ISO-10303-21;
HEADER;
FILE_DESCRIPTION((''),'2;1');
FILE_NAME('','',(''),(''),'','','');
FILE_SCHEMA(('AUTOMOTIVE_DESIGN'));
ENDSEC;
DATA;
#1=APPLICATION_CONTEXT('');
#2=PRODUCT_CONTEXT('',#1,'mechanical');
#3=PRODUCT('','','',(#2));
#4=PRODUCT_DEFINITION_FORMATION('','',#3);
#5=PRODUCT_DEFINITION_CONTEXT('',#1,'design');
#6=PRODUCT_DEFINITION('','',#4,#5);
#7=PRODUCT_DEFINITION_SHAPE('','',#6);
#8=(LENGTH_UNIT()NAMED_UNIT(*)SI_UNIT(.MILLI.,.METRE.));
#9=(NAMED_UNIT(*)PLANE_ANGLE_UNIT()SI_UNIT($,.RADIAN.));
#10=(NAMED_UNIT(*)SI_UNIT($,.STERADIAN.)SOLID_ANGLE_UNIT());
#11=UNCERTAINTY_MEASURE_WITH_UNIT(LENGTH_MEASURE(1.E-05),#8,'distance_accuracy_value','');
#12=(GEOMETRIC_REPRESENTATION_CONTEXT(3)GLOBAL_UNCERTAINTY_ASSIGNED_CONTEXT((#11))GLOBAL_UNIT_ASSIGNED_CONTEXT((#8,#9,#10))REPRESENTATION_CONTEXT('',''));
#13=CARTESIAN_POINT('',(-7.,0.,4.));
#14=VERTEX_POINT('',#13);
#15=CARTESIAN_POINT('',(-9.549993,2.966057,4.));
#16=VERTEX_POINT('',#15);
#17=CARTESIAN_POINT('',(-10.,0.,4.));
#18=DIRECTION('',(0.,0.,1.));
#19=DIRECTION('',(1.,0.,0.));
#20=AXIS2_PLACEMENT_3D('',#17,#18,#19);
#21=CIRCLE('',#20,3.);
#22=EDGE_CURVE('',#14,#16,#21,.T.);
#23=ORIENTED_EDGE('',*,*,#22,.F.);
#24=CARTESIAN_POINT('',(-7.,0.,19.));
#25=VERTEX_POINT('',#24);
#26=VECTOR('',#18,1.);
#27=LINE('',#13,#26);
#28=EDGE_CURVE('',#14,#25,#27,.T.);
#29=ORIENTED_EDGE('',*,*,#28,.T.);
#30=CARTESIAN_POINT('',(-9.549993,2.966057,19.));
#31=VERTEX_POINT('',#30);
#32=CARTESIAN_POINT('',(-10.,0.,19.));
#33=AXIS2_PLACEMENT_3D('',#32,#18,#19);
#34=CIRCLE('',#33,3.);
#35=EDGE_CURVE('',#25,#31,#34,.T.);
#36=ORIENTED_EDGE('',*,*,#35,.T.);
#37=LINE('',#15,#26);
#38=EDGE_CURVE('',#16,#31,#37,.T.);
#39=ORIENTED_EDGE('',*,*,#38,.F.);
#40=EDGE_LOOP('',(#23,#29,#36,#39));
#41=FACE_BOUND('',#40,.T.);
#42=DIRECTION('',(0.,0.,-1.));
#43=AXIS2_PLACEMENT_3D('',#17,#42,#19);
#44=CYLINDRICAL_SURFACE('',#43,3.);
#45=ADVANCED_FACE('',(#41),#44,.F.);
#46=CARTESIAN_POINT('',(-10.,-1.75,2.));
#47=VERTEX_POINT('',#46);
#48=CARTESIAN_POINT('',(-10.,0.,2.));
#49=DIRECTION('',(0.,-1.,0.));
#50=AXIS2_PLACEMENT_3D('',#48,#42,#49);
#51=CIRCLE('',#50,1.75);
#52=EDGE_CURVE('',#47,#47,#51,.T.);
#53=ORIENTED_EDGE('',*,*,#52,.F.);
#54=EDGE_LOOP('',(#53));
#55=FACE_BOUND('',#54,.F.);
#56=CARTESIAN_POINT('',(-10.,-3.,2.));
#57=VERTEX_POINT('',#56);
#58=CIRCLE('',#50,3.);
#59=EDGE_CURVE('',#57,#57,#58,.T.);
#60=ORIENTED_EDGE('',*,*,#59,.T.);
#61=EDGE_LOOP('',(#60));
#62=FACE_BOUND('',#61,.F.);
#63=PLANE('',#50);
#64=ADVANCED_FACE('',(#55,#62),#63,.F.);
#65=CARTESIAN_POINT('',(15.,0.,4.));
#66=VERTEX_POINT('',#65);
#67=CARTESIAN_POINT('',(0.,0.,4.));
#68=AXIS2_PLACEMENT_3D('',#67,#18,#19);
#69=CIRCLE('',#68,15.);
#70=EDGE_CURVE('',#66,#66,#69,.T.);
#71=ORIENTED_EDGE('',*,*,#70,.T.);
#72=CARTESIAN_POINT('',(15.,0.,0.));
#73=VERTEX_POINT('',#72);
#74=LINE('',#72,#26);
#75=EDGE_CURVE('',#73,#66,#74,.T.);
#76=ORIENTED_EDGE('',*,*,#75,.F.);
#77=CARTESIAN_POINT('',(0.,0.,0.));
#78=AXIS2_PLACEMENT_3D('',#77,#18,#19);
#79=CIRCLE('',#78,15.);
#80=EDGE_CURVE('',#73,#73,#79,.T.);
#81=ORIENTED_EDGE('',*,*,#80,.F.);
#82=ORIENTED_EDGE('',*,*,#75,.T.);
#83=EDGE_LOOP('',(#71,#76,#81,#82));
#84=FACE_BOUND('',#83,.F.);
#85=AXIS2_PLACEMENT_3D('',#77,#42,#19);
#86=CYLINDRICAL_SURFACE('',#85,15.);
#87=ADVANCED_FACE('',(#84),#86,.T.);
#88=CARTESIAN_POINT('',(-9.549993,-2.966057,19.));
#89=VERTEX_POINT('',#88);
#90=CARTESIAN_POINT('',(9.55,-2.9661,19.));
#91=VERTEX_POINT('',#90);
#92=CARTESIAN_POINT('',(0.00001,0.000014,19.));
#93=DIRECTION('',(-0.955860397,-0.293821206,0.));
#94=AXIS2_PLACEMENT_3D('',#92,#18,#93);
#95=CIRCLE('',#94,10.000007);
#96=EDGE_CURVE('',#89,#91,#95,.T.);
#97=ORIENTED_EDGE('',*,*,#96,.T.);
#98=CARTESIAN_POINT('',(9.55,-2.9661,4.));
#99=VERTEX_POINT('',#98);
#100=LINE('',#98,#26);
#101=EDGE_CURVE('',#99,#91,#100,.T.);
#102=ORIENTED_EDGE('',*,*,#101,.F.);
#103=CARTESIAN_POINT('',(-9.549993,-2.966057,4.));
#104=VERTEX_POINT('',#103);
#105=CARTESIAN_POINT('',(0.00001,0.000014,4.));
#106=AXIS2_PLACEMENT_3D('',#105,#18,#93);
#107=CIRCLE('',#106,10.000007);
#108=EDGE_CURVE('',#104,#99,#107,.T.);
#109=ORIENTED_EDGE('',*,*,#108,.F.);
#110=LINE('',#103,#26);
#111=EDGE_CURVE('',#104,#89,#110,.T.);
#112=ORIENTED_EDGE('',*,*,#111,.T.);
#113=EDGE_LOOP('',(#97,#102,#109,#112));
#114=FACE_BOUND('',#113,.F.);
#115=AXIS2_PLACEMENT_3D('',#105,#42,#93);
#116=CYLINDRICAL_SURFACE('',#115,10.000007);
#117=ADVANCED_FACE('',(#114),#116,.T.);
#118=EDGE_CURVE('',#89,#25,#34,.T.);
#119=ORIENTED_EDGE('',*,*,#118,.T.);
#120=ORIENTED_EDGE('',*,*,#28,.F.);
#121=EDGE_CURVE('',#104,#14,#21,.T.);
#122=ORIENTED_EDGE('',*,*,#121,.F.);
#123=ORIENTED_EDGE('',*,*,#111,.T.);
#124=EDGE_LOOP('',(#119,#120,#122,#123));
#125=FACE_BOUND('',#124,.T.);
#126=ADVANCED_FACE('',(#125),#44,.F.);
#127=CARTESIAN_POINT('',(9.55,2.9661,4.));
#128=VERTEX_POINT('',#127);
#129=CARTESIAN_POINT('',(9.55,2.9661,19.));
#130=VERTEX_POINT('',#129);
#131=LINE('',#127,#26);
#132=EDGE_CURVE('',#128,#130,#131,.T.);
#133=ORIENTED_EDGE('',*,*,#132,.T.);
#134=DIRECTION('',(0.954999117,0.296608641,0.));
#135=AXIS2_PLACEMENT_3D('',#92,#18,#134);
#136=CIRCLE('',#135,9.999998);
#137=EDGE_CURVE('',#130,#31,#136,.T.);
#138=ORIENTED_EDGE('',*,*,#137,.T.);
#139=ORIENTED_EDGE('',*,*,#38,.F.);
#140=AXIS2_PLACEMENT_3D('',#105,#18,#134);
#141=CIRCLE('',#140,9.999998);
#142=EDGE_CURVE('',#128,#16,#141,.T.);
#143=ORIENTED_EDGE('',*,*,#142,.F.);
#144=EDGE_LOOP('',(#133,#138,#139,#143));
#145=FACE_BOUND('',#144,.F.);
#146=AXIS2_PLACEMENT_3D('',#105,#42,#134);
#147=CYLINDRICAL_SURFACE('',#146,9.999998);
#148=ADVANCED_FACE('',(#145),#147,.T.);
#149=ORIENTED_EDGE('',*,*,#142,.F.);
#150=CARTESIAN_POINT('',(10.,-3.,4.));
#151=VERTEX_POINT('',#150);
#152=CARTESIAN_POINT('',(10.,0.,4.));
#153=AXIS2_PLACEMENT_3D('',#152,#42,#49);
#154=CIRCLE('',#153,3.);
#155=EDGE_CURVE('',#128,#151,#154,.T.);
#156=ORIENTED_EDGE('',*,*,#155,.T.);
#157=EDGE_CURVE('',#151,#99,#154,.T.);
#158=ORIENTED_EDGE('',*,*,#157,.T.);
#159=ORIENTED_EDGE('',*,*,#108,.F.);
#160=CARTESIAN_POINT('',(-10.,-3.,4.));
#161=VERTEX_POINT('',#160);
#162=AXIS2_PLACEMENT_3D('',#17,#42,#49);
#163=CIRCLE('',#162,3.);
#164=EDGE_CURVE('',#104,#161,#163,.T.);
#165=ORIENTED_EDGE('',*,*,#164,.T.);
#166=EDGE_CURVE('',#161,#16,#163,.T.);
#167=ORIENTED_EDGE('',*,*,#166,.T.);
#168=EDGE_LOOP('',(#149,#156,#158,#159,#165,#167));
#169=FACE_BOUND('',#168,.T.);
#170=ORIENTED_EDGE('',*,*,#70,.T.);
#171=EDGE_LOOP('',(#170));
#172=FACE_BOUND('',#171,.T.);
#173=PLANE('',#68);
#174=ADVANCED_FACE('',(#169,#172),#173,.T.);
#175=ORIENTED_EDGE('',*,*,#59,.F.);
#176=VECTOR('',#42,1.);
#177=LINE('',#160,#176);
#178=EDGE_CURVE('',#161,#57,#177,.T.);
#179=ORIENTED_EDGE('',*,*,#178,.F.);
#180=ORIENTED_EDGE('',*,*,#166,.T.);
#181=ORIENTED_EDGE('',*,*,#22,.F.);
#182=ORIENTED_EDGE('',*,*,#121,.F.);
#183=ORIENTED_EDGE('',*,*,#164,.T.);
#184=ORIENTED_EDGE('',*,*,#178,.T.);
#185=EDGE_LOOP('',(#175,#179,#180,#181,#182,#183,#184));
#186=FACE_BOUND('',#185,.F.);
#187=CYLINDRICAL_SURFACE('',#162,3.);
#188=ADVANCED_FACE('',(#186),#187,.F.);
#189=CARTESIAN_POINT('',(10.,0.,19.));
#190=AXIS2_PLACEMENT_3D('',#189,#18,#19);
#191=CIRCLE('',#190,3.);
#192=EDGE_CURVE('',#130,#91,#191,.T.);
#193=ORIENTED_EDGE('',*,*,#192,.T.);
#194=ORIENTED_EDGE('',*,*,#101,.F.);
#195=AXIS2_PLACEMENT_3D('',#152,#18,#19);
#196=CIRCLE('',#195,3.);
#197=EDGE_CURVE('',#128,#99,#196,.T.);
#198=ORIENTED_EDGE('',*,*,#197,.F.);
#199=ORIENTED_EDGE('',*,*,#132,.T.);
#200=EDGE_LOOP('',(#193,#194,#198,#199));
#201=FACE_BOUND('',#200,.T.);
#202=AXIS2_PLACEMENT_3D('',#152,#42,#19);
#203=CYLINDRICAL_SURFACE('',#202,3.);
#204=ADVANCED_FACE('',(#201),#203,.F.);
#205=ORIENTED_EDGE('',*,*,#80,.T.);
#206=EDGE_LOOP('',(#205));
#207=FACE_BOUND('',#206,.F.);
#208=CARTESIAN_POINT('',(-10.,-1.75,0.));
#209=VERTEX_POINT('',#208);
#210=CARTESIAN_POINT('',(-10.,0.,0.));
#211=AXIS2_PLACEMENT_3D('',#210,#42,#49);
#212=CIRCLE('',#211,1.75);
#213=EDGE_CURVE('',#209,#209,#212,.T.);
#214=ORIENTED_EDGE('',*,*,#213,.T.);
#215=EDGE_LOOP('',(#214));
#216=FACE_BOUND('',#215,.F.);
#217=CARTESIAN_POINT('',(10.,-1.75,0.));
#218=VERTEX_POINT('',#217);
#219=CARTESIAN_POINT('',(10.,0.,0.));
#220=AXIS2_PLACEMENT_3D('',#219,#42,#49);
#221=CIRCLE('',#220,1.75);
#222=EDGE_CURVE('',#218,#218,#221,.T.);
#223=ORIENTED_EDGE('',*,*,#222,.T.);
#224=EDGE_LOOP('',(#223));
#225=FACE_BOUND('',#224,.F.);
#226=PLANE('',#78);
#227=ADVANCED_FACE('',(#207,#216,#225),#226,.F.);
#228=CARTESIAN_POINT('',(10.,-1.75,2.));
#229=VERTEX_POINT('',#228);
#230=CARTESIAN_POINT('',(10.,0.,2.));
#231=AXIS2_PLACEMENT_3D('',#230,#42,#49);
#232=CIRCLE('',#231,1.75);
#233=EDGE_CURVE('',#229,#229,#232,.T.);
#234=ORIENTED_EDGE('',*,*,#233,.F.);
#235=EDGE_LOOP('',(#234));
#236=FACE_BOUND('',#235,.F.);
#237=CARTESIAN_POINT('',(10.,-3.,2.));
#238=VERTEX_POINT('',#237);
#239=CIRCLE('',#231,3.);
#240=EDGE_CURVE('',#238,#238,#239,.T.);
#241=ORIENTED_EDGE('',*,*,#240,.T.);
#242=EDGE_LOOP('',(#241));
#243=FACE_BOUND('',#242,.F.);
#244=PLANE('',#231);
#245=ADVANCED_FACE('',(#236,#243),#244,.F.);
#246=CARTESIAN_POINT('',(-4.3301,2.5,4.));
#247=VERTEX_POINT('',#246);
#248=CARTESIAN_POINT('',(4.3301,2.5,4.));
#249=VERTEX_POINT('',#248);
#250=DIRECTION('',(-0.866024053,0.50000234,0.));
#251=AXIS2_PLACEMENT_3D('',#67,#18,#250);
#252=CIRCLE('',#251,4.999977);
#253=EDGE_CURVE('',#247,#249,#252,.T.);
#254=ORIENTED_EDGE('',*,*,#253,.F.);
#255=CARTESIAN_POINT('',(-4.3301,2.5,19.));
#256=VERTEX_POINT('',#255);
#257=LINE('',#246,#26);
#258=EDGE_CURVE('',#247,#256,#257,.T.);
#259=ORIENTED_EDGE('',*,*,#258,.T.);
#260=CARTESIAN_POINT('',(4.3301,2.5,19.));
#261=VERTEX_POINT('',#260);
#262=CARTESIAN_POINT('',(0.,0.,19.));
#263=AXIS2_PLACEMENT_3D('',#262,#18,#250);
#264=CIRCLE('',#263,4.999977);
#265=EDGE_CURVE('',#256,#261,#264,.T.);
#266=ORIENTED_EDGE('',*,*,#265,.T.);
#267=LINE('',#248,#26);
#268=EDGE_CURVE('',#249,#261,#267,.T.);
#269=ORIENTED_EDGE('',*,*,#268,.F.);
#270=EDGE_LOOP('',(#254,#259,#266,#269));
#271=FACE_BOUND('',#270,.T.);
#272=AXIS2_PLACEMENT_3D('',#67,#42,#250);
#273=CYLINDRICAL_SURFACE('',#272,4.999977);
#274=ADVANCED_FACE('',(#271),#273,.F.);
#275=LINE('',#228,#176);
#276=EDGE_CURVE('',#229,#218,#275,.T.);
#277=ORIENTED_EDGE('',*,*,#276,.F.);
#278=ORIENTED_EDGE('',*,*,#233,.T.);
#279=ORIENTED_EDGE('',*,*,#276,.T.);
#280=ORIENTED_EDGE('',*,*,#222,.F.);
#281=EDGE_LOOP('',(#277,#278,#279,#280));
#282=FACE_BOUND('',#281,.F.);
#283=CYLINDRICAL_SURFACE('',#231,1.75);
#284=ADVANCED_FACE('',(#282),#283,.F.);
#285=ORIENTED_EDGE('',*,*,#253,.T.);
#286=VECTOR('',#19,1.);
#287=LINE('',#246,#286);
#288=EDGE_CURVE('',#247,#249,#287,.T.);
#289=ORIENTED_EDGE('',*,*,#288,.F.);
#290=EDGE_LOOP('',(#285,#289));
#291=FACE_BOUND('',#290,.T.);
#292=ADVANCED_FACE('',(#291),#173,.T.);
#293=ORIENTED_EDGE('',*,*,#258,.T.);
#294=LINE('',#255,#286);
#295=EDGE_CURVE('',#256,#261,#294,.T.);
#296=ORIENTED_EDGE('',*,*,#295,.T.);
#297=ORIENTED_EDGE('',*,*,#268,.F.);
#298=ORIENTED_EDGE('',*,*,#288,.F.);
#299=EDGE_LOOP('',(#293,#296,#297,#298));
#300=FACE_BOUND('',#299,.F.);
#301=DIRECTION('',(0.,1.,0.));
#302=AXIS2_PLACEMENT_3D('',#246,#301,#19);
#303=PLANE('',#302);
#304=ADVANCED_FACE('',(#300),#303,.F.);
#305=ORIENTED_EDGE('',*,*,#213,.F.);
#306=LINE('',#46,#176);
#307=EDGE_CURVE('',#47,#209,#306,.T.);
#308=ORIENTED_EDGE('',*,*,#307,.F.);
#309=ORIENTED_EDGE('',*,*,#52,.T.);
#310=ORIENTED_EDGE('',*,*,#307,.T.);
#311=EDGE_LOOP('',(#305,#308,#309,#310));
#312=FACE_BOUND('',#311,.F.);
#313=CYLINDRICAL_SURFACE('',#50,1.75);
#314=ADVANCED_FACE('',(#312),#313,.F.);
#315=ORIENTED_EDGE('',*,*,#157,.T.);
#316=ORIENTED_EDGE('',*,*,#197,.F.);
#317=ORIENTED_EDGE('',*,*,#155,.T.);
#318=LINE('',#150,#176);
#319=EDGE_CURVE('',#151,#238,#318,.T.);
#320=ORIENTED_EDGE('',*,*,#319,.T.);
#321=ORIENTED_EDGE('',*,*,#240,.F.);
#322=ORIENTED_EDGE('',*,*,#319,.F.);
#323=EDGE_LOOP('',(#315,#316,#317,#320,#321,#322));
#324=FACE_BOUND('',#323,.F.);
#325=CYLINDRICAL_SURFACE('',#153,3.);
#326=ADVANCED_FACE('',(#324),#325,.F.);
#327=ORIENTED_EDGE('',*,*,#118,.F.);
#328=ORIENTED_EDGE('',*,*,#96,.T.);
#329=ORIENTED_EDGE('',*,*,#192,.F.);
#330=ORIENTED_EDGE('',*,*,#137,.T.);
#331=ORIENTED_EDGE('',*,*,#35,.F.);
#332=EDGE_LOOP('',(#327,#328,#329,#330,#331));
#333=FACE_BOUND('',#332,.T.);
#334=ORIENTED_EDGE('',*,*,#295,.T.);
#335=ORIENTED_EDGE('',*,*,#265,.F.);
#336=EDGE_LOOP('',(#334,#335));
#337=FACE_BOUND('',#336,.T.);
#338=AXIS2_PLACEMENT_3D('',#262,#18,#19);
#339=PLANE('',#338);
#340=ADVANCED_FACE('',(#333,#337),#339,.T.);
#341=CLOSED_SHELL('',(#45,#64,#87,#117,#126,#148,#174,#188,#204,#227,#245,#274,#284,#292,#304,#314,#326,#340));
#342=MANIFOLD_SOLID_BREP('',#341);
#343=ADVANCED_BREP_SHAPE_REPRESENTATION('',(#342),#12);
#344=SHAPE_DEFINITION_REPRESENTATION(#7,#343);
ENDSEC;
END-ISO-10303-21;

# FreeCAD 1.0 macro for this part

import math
import FreeCAD as App
import Part
import Sketcher
Q = App.Units.Quantity

doc = App.newDocument("Part")
body = doc.addObject("PartDesign::Body", "Body")

sketch1 = doc.addObject("Sketcher::SketchObject", "Sketch")
body.addObject(sketch1)
sketch1.AttachmentSupport = (doc.XY_Plane, [""])
sketch1.MapMode = "FlatFace"
sketch1.addGeometry(Part.Circle(App.Vector(0, 0, 0), App.Vector(0, 0, 1), 15), False)
sketch1.addConstraint(Sketcher.Constraint("Coincident", 0, 3, -1, 1))
sketch1.addConstraint(Sketcher.Constraint("Diameter", 0, Q("30 mm")))
pad1 = doc.addObject("PartDesign::Pad", "Pad")
body.addObject(pad1)
pad1.Profile = sketch1
pad1.Length = 4

sketch2 = doc.addObject("Sketcher::SketchObject", "Sketch001")
body.addObject(sketch2)
sketch2.AttachmentSupport = (doc.XY_Plane, [""])
sketch2.MapMode = "FlatFace"
sketch2.AttachmentOffset = App.Placement(App.Vector(0, 0, 4), App.Rotation())
sketch2.addGeometry(Part.Circle(App.Vector(-10, 0, 0), App.Vector(0, 0, 1), 1.8), False)
sketch2.addGeometry(Part.Circle(App.Vector(10, 0, 0), App.Vector(0, 0, 1), 1.8), False)
sketch2.addConstraint(Sketcher.Constraint("Equal", 0, 1))
sketch2.addConstraint(Sketcher.Constraint("Symmetric", 0, 3, 1, 3, -1, 1))
sketch2.addConstraint(Sketcher.Constraint("PointOnObject", 0, 3, -1))
sketch2.addConstraint(Sketcher.Constraint("Diameter", 0, Q("3.5 mm")))
sketch2.addConstraint(Sketcher.Constraint("DistanceX", 0, 3, -1, 1, Q("10 mm")))
doc.recompute()
hole = doc.addObject("PartDesign::Hole", "Hole")
body.addObject(hole)
hole.Profile = sketch2
hole.ThreadType = "None"
hole.Diameter = 3.5
hole.DepthType = "ThroughAll"
hole.HoleCutType = "Counterbore"
hole.HoleCutDiameter = 6
hole.HoleCutDepth = 2

sketch3 = doc.addObject("Sketcher::SketchObject", "Sketch002")
body.addObject(sketch3)
sketch3.AttachmentSupport = (doc.XY_Plane, [""])
sketch3.MapMode = "FlatFace"
sketch3.AttachmentOffset = App.Placement(App.Vector(0, 0, 4), App.Rotation())
sketch3.addGeometry(Part.ArcOfCircle(Part.Circle(App.Vector(10, 0, 0), App.Vector(0, 0, 1), 3), math.radians(99), math.radians(261)), False)
sketch3.addGeometry(Part.ArcOfCircle(Part.Circle(App.Vector(0, 0, 0), App.Vector(0, 0, 1), 10), math.radians(17), math.radians(163)), False)
sketch3.addGeometry(Part.ArcOfCircle(Part.Circle(App.Vector(-10, 0, 0), App.Vector(0, 0, 1), 3), math.radians(-81), math.radians(81)), False)
sketch3.addGeometry(Part.ArcOfCircle(Part.Circle(App.Vector(0, 0, 0), App.Vector(0, 0, 1), 10), math.radians(-163), math.radians(-17)), False)
sketch3.addGeometry(Part.ArcOfCircle(Part.Circle(App.Vector(0, 0, 0), App.Vector(0, 0, 1), 5), math.radians(150), math.radians(390)), False)
sketch3.addGeometry(Part.LineSegment(App.Vector(-4.3, 2.5, 0), App.Vector(4.3, 2.5, 0)), False)
sketch3.addConstraint(Sketcher.Constraint("Coincident", 0, 1, 1, 1))
sketch3.addConstraint(Sketcher.Constraint("Coincident", 1, 2, 2, 2))
sketch3.addConstraint(Sketcher.Constraint("Coincident", 2, 1, 3, 1))
sketch3.addConstraint(Sketcher.Constraint("Coincident", 3, 2, 0, 2))
sketch3.addConstraint(Sketcher.Constraint("Coincident", 4, 1, 5, 1))
sketch3.addConstraint(Sketcher.Constraint("Coincident", 5, 2, 4, 2))
sketch3.addConstraint(Sketcher.Constraint("Horizontal", 5))
sketch3.addConstraint(Sketcher.Constraint("Coincident", 1, 3, -1, 1))
sketch3.addConstraint(Sketcher.Constraint("Coincident", 3, 3, -1, 1))
sketch3.addConstraint(Sketcher.Constraint("Coincident", 4, 3, -1, 1))
sketch3.addConstraint(Sketcher.Constraint("Equal", 0, 2))
sketch3.addConstraint(Sketcher.Constraint("Equal", 1, 3))
sketch3.addConstraint(Sketcher.Constraint("Symmetric", 0, 3, 2, 3, -1, 1))
sketch3.addConstraint(Sketcher.Constraint("PointOnObject", 0, 3, -1))
sketch3.addConstraint(Sketcher.Constraint("Radius", 1, Q("10 mm")))
sketch3.addConstraint(Sketcher.Constraint("Radius", 4, Q("5 mm")))
sketch3.addConstraint(Sketcher.Constraint("DistanceX", -1, 1, 0, 3, Q("10 mm")))
sketch3.addConstraint(Sketcher.Constraint("Radius", 0, Q("3 mm")))
sketch3.addConstraint(Sketcher.Constraint("DistanceY", -1, 1, 4, 1, Q("2.5 mm")))
pad2 = doc.addObject("PartDesign::Pad", "Pad001")
body.addObject(pad2)
pad2.Profile = sketch3
pad2.Length = 15

doc.recompute()
